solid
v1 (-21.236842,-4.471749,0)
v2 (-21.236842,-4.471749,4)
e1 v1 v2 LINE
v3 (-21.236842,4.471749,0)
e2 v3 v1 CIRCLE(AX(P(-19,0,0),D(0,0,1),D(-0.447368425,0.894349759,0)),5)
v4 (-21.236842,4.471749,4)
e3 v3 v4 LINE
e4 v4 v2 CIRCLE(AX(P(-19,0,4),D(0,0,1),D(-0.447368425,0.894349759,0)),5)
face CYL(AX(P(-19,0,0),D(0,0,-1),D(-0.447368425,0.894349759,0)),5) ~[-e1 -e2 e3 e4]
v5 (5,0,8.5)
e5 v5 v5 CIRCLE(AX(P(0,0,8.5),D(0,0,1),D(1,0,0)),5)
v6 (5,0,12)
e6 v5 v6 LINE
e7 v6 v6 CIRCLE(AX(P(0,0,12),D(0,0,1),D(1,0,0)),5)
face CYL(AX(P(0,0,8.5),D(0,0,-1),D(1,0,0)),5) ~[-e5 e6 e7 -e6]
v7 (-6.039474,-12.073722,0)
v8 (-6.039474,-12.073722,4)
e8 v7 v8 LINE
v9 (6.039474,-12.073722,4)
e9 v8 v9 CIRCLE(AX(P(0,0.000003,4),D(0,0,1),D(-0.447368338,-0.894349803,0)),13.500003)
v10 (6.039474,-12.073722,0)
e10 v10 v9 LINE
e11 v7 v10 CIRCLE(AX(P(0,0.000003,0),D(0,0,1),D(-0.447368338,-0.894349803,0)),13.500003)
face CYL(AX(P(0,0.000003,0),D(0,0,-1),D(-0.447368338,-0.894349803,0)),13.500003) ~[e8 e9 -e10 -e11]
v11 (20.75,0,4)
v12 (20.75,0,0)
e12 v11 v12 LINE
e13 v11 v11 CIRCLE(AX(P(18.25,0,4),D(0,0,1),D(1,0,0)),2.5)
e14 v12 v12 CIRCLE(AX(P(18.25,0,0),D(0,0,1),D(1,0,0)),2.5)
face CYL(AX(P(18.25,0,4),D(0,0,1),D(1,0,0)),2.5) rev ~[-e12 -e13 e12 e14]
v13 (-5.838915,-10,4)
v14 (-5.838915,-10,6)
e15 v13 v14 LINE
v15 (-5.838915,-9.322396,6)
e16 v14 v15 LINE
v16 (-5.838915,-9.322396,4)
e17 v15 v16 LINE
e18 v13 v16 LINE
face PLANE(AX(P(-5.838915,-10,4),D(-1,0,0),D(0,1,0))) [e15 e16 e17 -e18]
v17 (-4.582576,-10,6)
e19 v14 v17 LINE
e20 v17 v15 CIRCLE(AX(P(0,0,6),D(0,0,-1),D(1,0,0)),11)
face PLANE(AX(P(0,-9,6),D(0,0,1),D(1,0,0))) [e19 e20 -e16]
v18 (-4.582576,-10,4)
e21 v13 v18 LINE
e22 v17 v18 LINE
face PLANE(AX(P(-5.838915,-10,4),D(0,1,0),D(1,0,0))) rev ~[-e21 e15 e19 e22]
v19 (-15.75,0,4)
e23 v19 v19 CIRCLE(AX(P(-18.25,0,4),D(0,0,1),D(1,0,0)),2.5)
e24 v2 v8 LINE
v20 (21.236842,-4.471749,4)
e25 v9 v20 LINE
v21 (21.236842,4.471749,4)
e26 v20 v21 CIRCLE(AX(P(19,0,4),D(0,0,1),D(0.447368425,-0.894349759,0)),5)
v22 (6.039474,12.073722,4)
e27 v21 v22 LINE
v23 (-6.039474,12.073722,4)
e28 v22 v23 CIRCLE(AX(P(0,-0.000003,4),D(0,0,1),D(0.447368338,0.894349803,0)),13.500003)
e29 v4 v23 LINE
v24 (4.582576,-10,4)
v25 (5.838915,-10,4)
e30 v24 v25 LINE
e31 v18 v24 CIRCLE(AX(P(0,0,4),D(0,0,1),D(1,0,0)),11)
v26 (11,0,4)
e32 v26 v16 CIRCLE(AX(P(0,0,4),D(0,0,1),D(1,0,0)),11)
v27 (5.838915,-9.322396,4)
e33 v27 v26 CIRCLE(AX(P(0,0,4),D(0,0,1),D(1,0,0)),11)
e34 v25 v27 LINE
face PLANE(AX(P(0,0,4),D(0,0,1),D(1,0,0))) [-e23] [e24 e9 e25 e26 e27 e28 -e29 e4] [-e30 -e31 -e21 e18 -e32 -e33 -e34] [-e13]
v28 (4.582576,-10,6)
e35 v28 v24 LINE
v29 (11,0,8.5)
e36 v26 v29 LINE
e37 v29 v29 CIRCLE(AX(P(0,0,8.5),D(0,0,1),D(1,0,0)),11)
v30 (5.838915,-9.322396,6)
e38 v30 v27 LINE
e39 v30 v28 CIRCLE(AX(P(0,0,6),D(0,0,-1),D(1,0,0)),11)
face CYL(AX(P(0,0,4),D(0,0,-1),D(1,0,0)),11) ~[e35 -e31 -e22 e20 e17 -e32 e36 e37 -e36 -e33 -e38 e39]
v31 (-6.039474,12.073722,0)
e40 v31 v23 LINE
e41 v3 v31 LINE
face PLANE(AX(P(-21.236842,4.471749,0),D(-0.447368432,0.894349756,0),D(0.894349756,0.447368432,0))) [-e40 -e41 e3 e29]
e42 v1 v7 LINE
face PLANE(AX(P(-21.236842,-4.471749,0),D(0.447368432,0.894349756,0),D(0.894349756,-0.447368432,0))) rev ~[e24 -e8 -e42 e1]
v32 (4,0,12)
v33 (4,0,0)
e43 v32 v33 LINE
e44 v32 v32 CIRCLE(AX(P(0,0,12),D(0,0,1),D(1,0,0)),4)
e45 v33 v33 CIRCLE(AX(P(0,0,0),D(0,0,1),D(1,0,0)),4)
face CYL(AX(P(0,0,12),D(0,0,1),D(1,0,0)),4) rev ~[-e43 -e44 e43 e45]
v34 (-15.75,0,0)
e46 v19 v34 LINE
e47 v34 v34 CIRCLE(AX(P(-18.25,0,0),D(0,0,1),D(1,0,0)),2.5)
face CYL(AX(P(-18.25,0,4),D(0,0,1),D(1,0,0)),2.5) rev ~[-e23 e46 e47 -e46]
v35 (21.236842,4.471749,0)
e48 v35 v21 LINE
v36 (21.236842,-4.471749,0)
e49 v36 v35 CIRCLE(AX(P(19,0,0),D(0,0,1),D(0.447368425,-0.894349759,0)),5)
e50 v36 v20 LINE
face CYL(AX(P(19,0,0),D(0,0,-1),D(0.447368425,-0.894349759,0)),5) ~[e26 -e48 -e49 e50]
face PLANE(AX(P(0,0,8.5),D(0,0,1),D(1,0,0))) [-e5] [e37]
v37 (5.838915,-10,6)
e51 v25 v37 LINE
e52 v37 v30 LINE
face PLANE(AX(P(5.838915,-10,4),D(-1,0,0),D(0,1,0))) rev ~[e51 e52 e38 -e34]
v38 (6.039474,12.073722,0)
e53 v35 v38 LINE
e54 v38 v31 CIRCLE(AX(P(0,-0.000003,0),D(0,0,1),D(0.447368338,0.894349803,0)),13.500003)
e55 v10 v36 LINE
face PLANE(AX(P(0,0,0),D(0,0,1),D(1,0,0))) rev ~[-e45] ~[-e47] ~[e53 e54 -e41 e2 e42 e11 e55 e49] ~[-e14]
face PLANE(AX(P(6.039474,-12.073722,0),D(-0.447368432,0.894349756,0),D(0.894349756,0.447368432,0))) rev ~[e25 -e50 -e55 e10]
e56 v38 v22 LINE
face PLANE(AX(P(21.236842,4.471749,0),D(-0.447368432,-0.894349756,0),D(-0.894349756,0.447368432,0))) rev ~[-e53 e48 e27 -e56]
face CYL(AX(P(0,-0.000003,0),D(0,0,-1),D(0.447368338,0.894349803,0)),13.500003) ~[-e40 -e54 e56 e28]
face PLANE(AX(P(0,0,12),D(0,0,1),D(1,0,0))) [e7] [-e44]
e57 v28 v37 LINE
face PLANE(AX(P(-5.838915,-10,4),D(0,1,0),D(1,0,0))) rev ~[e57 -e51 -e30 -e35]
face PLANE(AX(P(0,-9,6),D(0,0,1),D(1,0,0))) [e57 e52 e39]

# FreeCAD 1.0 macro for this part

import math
import FreeCAD as App
import Part
import Sketcher
from FreeCAD import Vector
Q = App.Units.Quantity

doc = App.newDocument("Part")
body = doc.addObject("PartDesign::Body", "Body")

sketch1 = body.newObject("Sketcher::SketchObject", "Sketch")
sketch1.AttachmentSupport = (doc.getObject("XY_Plane"), [""])
sketch1.MapMode = "FlatFace"
sketch1.addGeometry([
    Part.ArcOfCircle(Part.Circle(Vector(19, 0, 0), Vector(0, 0, 1), 5), math.radians(-63), math.radians(63)),
    Part.LineSegment(Vector(21, 4, 0), Vector(6, 12, 0)),
    Part.ArcOfCircle(Part.Circle(Vector(0, 0, 0), Vector(0, 0, 1), 14), math.radians(63), math.radians(117)),
    Part.LineSegment(Vector(-6, 12, 0), Vector(-21, 4, 0)),
    Part.ArcOfCircle(Part.Circle(Vector(-19, 0, 0), Vector(0, 0, 1), 5), math.radians(117), math.radians(243)),
    Part.LineSegment(Vector(-21, -4, 0), Vector(-6, -12, 0)),
    Part.ArcOfCircle(Part.Circle(Vector(0, 0, 0), Vector(0, 0, 1), 14), math.radians(-117), math.radians(-63)),
    Part.LineSegment(Vector(6, -12, 0), Vector(21, -4, 0)),
], False)
sketch1.addConstraint([
    Sketcher.Constraint("Tangent", 0, 2, 1, 1),
    Sketcher.Constraint("Tangent", 1, 2, 2, 1),
    Sketcher.Constraint("Tangent", 2, 2, 3, 1),
    Sketcher.Constraint("Tangent", 3, 2, 4, 1),
    Sketcher.Constraint("Tangent", 4, 2, 5, 1),
    Sketcher.Constraint("Tangent", 5, 2, 6, 1),
    Sketcher.Constraint("Tangent", 6, 2, 7, 1),
    Sketcher.Constraint("Tangent", 7, 2, 0, 1),
    Sketcher.Constraint("Coincident", 2, 3, -1, 1),
    Sketcher.Constraint("Coincident", 6, 3, -1, 1),
    Sketcher.Constraint("Equal", 0, 4),
    Sketcher.Constraint("Equal", 2, 6),
    Sketcher.Constraint("Symmetric", 0, 3, 4, 3, -1, 1),
    Sketcher.Constraint("PointOnObject", 0, 3, -1),
    Sketcher.Constraint("Radius", 0, Q("5 mm")),
    Sketcher.Constraint("DistanceX", -1, 1, 0, 3, Q("19 mm")),
    Sketcher.Constraint("Radius", 2, Q("13.500003 mm")),
])
pad1 = body.newObject("PartDesign::Pad", "Pad")
pad1.Profile = sketch1
pad1.Length = 4

sketch2 = body.newObject("Sketcher::SketchObject", "Sketch001")
sketch2.AttachmentSupport = (doc.getObject("XY_Plane"), [""])
sketch2.MapMode = "FlatFace"
sketch2.AttachmentOffset = App.Placement(Vector(0, 0, 4), App.Rotation())
sketch2.addGeometry([
    Part.Circle(Vector(-18.2, 0, 0), Vector(0, 0, 1), 2.5),
    Part.Circle(Vector(18.2, 0, 0), Vector(0, 0, 1), 2.5),
], False)
sketch2.addConstraint([
    Sketcher.Constraint("Equal", 0, 1),
    Sketcher.Constraint("Symmetric", 0, 3, 1, 3, -1, 1),
    Sketcher.Constraint("PointOnObject", 0, 3, -1),
    Sketcher.Constraint("Diameter", 0, Q("5 mm")),
    Sketcher.Constraint("DistanceX", 0, 3, 1, 3, Q("36.5 mm")),
])
pocket1 = body.newObject("PartDesign::Pocket", "Pocket")
pocket1.Profile = sketch2
pocket1.Type = "ThroughAll"

sketch3 = body.newObject("Sketcher::SketchObject", "Sketch002")
sketch3.AttachmentSupport = (doc.getObject("XY_Plane"), [""])
sketch3.MapMode = "FlatFace"
sketch3.AttachmentOffset = App.Placement(Vector(0, 0, 4), App.Rotation())
sketch3.addGeometry(Part.Circle(Vector(0, 0, 0), Vector(0, 0, 1), 11), False)
sketch3.addConstraint([
    Sketcher.Constraint("Coincident", 0, 3, -1, 1),
    Sketcher.Constraint("Diameter", 0, Q("22 mm")),
])
pad2 = body.newObject("PartDesign::Pad", "Pad001")
pad2.Profile = sketch3
pad2.Length = 4.5

sketch4 = body.newObject("Sketcher::SketchObject", "Sketch003")
sketch4.AttachmentSupport = (doc.getObject("XY_Plane"), [""])
sketch4.MapMode = "FlatFace"
sketch4.AttachmentOffset = App.Placement(Vector(0, 0, 8.5), App.Rotation())
sketch4.addGeometry(Part.Circle(Vector(0, 0, 0), Vector(0, 0, 1), 5), False)
sketch4.addConstraint([
    Sketcher.Constraint("Coincident", 0, 3, -1, 1),
    Sketcher.Constraint("Diameter", 0, Q("10 mm")),
])
pad3 = body.newObject("PartDesign::Pad", "Pad002")
pad3.Profile = sketch4
pad3.Length = 3.5

sketch5 = body.newObject("Sketcher::SketchObject", "Sketch004")
sketch5.AttachmentSupport = (doc.getObject("XY_Plane"), [""])
sketch5.MapMode = "FlatFace"
sketch5.AttachmentOffset = App.Placement(Vector(0, 0, 12), App.Rotation())
sketch5.addGeometry(Part.Circle(Vector(0, 0, 0), Vector(0, 0, 1), 4), False)
sketch5.addConstraint([
    Sketcher.Constraint("Coincident", 0, 3, -1, 1),
    Sketcher.Constraint("Diameter", 0, Q("8 mm")),
])
pocket2 = body.newObject("PartDesign::Pocket", "Pocket001")
pocket2.Profile = sketch5
pocket2.Type = "ThroughAll"

sketch6 = body.newObject("Sketcher::SketchObject", "Sketch005")
sketch6.AttachmentSupport = (doc.getObject("XY_Plane"), [""])
sketch6.MapMode = "FlatFace"
sketch6.AttachmentOffset = App.Placement(Vector(0, 0, 4), App.Rotation())
sketch6.addGeometry([
    Part.LineSegment(Vector(-5.8, -8, 0), Vector(-5.8, -10, 0)),
    Part.LineSegment(Vector(-5.8, -10, 0), Vector(5.8, -10, 0)),
    Part.LineSegment(Vector(5.8, -10, 0), Vector(5.8, -8, 0)),
    Part.LineSegment(Vector(5.8, -8, 0), Vector(-5.8, -8, 0)),
], False)
sketch6.addConstraint([
    Sketcher.Constraint("Coincident", 0, 2, 1, 1),
    Sketcher.Constraint("Coincident", 1, 2, 2, 1),
    Sketcher.Constraint("Coincident", 2, 2, 3, 1),
    Sketcher.Constraint("Coincident", 3, 2, 0, 1),
    Sketcher.Constraint("Vertical", 0),
    Sketcher.Constraint("Horizontal", 1),
    Sketcher.Constraint("Vertical", 2),
    Sketcher.Constraint("Horizontal", 3),
    Sketcher.Constraint("DistanceY", 0, 2, 0, 1, Q("2 mm")),
    Sketcher.Constraint("DistanceY", 0, 2, -1, 1, Q("10 mm")),
    Sketcher.Constraint("DistanceX", 1, 1, 1, 2, Q("11.67783 mm")),
    Sketcher.Constraint("DistanceX", 0, 2, -1, 1, Q("5.838915 mm")),
])
pad4 = body.newObject("PartDesign::Pad", "Pad003")
pad4.Profile = sketch6
pad4.Length = 2

doc.recompute()
